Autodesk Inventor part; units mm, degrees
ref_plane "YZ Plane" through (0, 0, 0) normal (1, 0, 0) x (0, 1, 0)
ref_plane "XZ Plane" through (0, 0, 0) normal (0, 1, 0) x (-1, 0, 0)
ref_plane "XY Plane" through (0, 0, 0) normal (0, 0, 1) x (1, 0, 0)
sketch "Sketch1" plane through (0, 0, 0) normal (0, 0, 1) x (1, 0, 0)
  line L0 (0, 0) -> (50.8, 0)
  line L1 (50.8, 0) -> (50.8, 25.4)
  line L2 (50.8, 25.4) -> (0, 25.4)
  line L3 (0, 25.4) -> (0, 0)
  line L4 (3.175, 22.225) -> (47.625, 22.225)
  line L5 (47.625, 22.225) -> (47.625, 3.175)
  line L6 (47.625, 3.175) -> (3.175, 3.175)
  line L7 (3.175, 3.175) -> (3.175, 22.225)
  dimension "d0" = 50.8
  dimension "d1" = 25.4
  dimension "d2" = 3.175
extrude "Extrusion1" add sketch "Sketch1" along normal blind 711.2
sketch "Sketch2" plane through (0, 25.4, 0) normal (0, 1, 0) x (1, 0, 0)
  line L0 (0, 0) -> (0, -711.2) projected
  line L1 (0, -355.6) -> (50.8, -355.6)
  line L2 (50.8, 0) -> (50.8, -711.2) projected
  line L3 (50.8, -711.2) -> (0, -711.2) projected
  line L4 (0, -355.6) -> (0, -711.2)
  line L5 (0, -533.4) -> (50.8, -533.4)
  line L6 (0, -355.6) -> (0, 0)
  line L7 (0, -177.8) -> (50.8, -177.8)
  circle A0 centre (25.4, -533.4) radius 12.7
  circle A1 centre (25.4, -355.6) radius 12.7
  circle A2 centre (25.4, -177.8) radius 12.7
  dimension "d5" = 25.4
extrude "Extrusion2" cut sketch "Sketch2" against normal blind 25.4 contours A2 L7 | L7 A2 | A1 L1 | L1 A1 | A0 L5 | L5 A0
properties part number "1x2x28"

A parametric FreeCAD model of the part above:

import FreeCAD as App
import Part
import Sketcher
Q = App.Units.Quantity

doc = App.newDocument("Part")
body = doc.addObject("PartDesign::Body", "Body")

sketch1 = body.newObject("Sketcher::SketchObject", "Sketch")
sketch1.AttachmentSupport = (doc.getObject("XY_Plane"), [""])
sketch1.MapMode = "FlatFace"
sketch1.addGeometry(Part.LineSegment(App.Vector(0, 25, 0), App.Vector(0, 0, 0)), False)
sketch1.addGeometry(Part.LineSegment(App.Vector(0, 0, 0), App.Vector(51, 0, 0)), False)
sketch1.addGeometry(Part.LineSegment(App.Vector(51, 0, 0), App.Vector(51, 25, 0)), False)
sketch1.addGeometry(Part.LineSegment(App.Vector(51, 25, 0), App.Vector(0, 25, 0)), False)
sketch1.addGeometry(Part.LineSegment(App.Vector(3, 3, 0), App.Vector(3, 22, 0)), False)
sketch1.addGeometry(Part.LineSegment(App.Vector(3, 22, 0), App.Vector(48, 22, 0)), False)
sketch1.addGeometry(Part.LineSegment(App.Vector(48, 22, 0), App.Vector(48, 3, 0)), False)
sketch1.addGeometry(Part.LineSegment(App.Vector(48, 3, 0), App.Vector(3, 3, 0)), False)
sketch1.addConstraint(Sketcher.Constraint("Coincident", 0, 2, 1, 1))
sketch1.addConstraint(Sketcher.Constraint("Coincident", 1, 2, 2, 1))
sketch1.addConstraint(Sketcher.Constraint("Coincident", 2, 2, 3, 1))
sketch1.addConstraint(Sketcher.Constraint("Coincident", 3, 2, 0, 1))
sketch1.addConstraint(Sketcher.Constraint("Coincident", 4, 2, 5, 1))
sketch1.addConstraint(Sketcher.Constraint("Coincident", 5, 2, 6, 1))
sketch1.addConstraint(Sketcher.Constraint("Coincident", 6, 2, 7, 1))
sketch1.addConstraint(Sketcher.Constraint("Coincident", 7, 2, 4, 1))
sketch1.addConstraint(Sketcher.Constraint("Vertical", 0))
sketch1.addConstraint(Sketcher.Constraint("Horizontal", 1))
sketch1.addConstraint(Sketcher.Constraint("Vertical", 2))
sketch1.addConstraint(Sketcher.Constraint("Horizontal", 3))
sketch1.addConstraint(Sketcher.Constraint("Vertical", 4))
sketch1.addConstraint(Sketcher.Constraint("Horizontal", 5))
sketch1.addConstraint(Sketcher.Constraint("Vertical", 6))
sketch1.addConstraint(Sketcher.Constraint("Horizontal", 7))
sketch1.addConstraint(Sketcher.Constraint("Coincident", 0, 2, -1, 1))
sketch1.addConstraint(Sketcher.Constraint("DistanceX", 1, 1, 1, 2, Q("2 in")))
sketch1.addConstraint(Sketcher.Constraint("DistanceY", 0, 2, 0, 1, Q("1 in")))
sketch1.addConstraint(Sketcher.Constraint("DistanceX", -1, 1, 4, 2, Q("0.125 in")))
sketch1.addConstraint(Sketcher.Constraint("DistanceY", -1, 1, 6, 2, Q("0.125 in")))
sketch1.addConstraint(Sketcher.Constraint("DistanceY", 4, 2, 3, 2, Q("0.125 in")))
sketch1.addConstraint(Sketcher.Constraint("DistanceX", 5, 2, 2, 2, Q("0.125 in")))
pad1 = body.newObject("PartDesign::Pad", "Pad")
pad1.Profile = sketch1
pad1.Length = Q("28 in")

sketch2 = body.newObject("Sketcher::SketchObject", "Sketch001")
sketch2.AttachmentSupport = (doc.getObject("XZ_Plane"), [""])
sketch2.MapMode = "FlatFace"
sketch2.AttachmentOffset = App.Placement(App.Vector(0, 0, -1 * 25.4), App.Rotation())
sketch2.addGeometry(Part.Circle(App.Vector(25, 178, 0), App.Vector(0, 0, 1), 13), False)
sketch2.addGeometry(Part.Circle(App.Vector(25, 356, 0), App.Vector(0, 0, 1), 13), False)
sketch2.addGeometry(Part.Circle(App.Vector(25, 533, 0), App.Vector(0, 0, 1), 13), False)
sketch2.addConstraint(Sketcher.Constraint("Equal", 0, 1))
sketch2.addConstraint(Sketcher.Constraint("Equal", 1, 2))
sketch2.addConstraint(Sketcher.Constraint("Vertical", 0, 3, 1, 3))
sketch2.addConstraint(Sketcher.Constraint("Vertical", 1, 3, 2, 3))
sketch2.addConstraint(Sketcher.Constraint("Diameter", 0, Q("1 in")))
sketch2.addConstraint(Sketcher.Constraint("DistanceX", -1, 1, 0, 3, Q("1 in")))
sketch2.addConstraint(Sketcher.Constraint("DistanceY", -1, 1, 0, 3, Q("7 in")))
sketch2.addConstraint(Sketcher.Constraint("DistanceY", -1, 1, 1, 3, Q("14 in")))
sketch2.addConstraint(Sketcher.Constraint("DistanceY", -1, 1, 2, 3, Q("21 in")))
pocket1 = body.newObject("PartDesign::Pocket", "Pocket")
pocket1.Profile = sketch2
pocket1.Length = Q("1 in")
pocket1.Reversed = True

doc.recompute()
